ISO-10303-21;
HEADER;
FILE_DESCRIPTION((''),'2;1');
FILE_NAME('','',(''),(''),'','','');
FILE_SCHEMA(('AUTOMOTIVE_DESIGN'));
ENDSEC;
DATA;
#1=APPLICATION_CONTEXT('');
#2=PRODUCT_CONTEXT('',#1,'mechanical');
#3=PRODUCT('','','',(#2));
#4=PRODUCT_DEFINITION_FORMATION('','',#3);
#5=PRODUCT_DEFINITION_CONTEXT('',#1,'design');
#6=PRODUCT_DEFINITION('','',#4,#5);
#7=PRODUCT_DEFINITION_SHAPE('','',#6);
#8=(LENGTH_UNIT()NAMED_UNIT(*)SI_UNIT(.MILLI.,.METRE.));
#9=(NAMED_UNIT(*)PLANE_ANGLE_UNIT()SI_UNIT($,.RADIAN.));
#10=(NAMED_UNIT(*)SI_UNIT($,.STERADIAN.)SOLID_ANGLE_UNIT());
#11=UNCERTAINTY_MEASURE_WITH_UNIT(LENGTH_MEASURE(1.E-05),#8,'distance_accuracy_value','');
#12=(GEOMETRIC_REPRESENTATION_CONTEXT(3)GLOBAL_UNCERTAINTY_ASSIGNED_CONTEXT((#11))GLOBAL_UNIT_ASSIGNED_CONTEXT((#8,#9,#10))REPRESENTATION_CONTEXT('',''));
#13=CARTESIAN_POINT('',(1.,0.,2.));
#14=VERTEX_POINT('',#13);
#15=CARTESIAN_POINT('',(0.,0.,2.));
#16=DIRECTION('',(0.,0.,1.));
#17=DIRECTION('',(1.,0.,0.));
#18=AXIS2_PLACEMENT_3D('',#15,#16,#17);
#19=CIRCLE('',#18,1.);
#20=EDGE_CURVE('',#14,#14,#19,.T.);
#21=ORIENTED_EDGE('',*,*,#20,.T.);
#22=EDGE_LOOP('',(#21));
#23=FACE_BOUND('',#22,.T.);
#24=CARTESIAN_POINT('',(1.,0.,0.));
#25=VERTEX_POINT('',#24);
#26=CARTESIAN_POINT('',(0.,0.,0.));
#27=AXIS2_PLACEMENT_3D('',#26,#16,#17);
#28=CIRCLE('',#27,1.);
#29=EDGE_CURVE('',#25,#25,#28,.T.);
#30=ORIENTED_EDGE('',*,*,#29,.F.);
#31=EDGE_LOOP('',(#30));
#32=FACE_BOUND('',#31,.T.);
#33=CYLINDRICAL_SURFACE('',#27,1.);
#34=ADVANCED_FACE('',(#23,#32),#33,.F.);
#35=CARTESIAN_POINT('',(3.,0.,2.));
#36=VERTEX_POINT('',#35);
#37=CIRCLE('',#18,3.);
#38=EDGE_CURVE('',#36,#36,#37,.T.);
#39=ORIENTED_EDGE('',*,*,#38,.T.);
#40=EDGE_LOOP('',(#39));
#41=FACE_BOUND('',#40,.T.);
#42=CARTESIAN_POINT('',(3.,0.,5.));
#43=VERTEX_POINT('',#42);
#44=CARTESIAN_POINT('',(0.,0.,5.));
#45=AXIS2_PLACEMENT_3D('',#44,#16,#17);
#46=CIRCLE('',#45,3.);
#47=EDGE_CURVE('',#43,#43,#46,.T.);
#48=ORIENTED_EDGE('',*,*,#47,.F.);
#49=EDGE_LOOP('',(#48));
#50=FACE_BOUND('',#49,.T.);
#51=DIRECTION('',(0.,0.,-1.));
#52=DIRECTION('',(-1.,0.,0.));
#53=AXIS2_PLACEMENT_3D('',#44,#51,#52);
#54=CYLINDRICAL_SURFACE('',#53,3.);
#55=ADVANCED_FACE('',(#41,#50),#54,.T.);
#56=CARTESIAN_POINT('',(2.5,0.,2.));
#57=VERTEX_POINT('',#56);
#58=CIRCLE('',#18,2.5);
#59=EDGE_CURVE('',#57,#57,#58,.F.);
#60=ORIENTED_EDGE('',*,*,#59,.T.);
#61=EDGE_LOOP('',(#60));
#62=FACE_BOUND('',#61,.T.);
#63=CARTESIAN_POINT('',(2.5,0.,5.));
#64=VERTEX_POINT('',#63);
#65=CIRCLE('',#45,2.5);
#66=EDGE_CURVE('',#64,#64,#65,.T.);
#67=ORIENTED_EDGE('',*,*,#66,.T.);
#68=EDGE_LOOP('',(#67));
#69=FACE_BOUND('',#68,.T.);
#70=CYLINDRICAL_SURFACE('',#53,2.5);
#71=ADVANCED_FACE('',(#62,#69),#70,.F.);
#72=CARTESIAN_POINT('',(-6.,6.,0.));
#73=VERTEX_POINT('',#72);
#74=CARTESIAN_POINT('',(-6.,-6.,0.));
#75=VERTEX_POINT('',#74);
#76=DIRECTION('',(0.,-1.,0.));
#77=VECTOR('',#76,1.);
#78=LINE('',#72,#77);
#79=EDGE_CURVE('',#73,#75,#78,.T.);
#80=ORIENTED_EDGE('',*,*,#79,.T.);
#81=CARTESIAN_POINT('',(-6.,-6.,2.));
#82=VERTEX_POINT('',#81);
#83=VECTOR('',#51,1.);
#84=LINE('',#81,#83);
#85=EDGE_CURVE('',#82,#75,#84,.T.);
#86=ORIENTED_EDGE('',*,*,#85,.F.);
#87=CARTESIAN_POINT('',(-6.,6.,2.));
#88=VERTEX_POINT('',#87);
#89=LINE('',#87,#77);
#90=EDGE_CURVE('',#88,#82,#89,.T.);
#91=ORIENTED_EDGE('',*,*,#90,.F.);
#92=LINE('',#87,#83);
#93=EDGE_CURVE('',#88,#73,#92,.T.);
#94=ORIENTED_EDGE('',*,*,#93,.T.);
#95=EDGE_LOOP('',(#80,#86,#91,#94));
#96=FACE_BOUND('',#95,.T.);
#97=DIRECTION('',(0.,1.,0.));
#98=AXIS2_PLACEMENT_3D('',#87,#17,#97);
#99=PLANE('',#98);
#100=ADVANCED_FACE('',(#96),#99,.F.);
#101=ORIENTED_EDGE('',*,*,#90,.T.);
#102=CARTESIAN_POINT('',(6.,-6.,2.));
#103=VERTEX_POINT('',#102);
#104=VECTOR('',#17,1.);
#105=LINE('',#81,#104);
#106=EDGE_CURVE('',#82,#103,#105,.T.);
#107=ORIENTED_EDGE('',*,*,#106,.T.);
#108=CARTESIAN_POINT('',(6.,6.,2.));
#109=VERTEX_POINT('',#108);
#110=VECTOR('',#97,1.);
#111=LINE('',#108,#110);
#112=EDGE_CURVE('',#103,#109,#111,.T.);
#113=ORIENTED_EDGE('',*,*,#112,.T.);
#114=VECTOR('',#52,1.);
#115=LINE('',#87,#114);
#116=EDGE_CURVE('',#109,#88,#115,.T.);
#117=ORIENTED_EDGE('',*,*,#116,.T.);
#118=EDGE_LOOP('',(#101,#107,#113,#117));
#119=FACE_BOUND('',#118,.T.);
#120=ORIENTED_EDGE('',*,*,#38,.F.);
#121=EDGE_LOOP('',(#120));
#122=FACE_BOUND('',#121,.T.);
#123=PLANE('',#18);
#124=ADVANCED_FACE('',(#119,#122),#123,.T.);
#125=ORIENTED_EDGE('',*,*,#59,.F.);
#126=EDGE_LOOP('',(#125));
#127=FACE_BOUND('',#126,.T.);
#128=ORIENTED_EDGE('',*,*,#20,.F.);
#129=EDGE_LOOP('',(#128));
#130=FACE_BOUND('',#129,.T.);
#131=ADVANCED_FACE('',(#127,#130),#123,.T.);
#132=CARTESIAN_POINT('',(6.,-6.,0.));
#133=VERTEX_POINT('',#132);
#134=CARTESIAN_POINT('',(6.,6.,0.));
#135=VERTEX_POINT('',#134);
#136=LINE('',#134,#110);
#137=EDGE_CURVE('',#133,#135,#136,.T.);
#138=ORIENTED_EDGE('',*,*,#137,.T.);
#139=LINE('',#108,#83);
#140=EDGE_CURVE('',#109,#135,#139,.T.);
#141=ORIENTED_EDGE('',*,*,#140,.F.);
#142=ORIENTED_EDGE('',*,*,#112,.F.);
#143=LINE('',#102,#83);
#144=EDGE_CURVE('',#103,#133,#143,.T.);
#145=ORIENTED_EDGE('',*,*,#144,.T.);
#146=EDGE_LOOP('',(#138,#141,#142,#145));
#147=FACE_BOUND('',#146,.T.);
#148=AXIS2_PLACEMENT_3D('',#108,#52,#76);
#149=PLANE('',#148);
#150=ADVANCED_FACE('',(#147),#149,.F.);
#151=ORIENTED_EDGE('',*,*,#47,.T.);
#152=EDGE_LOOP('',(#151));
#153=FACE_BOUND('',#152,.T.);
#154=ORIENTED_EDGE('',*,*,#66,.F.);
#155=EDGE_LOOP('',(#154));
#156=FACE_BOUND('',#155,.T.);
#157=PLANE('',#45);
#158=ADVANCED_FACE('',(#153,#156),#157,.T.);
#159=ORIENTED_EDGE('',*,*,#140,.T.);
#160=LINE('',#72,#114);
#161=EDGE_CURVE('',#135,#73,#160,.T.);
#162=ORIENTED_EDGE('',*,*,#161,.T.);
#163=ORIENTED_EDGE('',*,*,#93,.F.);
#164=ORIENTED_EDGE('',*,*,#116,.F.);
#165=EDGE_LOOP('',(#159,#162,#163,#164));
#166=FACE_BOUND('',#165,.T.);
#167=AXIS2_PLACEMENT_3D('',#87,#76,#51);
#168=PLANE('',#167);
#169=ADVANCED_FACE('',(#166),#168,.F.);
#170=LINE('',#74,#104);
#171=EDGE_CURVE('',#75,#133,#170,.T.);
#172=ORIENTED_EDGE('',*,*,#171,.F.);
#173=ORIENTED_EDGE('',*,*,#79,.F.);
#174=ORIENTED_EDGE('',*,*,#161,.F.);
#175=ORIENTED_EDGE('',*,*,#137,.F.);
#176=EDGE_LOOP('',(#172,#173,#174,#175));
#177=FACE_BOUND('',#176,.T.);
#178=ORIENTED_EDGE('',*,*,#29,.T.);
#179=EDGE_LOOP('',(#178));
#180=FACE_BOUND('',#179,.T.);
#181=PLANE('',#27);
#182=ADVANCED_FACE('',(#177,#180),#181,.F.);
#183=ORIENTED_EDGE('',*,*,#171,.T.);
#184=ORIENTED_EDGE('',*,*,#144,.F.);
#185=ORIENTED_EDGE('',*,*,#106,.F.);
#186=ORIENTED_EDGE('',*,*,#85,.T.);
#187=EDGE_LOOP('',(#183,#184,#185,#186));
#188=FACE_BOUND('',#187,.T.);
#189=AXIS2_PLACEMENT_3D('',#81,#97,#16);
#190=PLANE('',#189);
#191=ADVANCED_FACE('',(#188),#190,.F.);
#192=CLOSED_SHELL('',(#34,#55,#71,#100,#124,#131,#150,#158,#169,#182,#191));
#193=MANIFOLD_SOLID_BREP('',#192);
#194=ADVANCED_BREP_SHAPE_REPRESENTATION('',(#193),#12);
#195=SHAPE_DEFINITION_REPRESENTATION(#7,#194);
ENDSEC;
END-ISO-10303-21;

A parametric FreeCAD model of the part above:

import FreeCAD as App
import Part
import Sketcher
Q = App.Units.Quantity


def add_polygon(sketch, points):
    """Adds a closed chain of lines whose ends are joined by coincident constraints."""
    first, n = sketch.GeometryCount, len(points)
    for a, b in zip(points, points[1:] + points[:1]):
        sketch.addGeometry(Part.LineSegment(App.Vector(*a, 0), App.Vector(*b, 0)), False)
    for i in range(n):
        sketch.addConstraint(Sketcher.Constraint("Coincident", first + i, 2, first + (i + 1) % n, 1))

doc = App.newDocument("Part")
body = doc.addObject("PartDesign::Body", "Body")

# Sketch on XY plane
sketch1 = body.newObject("Sketcher::SketchObject", "Sketch")
sketch1.AttachmentSupport = (doc.getObject("XY_Plane"), [""])
sketch1.MapMode = "FlatFace"
add_polygon(sketch1, [(-6, 6), (-6, -6), (6, -6), (6, 6)])  # lines 0-3
sketch1.addConstraint([
    Sketcher.Constraint("Vertical", 0),
    Sketcher.Constraint("Horizontal", 1),
    Sketcher.Constraint("Vertical", 2),
    Sketcher.Constraint("Horizontal", 3),
    Sketcher.Constraint("Symmetric", 0, 2, 2, 2, -1, 1),
    Sketcher.Constraint("Equal", 3, 0),
    Sketcher.Constraint("DistanceX", 1, 1, 1, 2, Q("12 mm")),
])
pad1 = body.newObject("PartDesign::Pad", "Pad")
pad1.Profile = sketch1
pad1.Length = 2

# Sketch on XY plane
sketch2 = body.newObject("Sketcher::SketchObject", "Sketch001")
sketch2.AttachmentSupport = (doc.getObject("XY_Plane"), [""])
sketch2.MapMode = "FlatFace"
sketch2.AttachmentOffset = App.Placement(App.Vector(0, 0, 2), App.Rotation())
sketch2.addGeometry([
    Part.Circle(App.Vector(0, 0, 0), App.Vector(0, 0, 1), 3),
    Part.Circle(App.Vector(0, 0, 0), App.Vector(0, 0, 1), 2.5),
], False)
sketch2.addConstraint([
    Sketcher.Constraint("Coincident", 0, 3, -1, 1),
    Sketcher.Constraint("Coincident", 1, 3, -1, 1),
    Sketcher.Constraint("Diameter", 0, Q("6 mm")),
    Sketcher.Constraint("Diameter", 1, Q("5 mm")),
])
pad2 = body.newObject("PartDesign::Pad", "Pad001")
pad2.Profile = sketch2
pad2.Length = 3

# Sketch on XY plane
sketch3 = body.newObject("Sketcher::SketchObject", "Sketch002")
sketch3.AttachmentSupport = (doc.getObject("XY_Plane"), [""])
sketch3.MapMode = "FlatFace"
sketch3.AttachmentOffset = App.Placement(App.Vector(0, 0, 2), App.Rotation())
sketch3.addGeometry(Part.Circle(App.Vector(0, 0, 0), App.Vector(0, 0, 1), 1), False)
sketch3.addConstraint([
    Sketcher.Constraint("Coincident", 0, 3, -1, 1),
    Sketcher.Constraint("Diameter", 0, Q("2 mm")),
])
pocket1 = body.newObject("PartDesign::Pocket", "Pocket")
pocket1.Profile = sketch3
pocket1.Type = "ThroughAll"

doc.recompute()
